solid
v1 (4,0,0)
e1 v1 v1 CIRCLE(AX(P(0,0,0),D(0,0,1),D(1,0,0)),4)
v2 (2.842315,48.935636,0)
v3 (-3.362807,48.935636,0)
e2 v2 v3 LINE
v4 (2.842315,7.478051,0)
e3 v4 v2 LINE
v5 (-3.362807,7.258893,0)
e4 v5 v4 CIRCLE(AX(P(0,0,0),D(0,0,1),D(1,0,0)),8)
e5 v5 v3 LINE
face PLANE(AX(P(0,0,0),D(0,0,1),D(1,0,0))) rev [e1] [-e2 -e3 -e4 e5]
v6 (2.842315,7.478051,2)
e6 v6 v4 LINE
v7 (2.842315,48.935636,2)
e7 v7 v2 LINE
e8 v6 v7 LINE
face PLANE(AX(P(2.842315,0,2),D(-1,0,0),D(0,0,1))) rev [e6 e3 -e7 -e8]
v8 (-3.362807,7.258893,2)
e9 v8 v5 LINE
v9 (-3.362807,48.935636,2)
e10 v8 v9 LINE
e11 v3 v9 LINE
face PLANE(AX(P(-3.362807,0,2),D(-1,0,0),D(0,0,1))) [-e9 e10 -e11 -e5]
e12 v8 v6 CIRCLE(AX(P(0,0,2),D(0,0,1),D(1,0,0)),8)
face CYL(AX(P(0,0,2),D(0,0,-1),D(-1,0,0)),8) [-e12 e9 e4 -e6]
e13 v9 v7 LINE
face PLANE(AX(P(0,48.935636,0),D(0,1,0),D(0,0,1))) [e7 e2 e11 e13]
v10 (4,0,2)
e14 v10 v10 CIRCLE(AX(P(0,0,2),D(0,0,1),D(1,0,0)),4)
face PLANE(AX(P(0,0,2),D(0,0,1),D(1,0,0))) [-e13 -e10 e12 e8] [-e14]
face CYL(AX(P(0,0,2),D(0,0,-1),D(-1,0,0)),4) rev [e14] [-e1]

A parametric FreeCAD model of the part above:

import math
import FreeCAD as App
import Part
import Sketcher

V = App.Vector
Q = App.Units.Quantity

doc = App.newDocument("Part")
params = doc.addObject("Spreadsheet::Sheet", "Params")
for row, (alias, value) in enumerate([
    ("sketch1_diameter", "8 mm"),
    ("sketch1_radius", "8 mm"),
    ("pad1_length", "2 mm"),
    ("sketch2_height", "2 mm"),
    ("pad2_length", "24.5 mm"),
    ("sketch3_height", "2 mm"),
    ("pad3_length", "8 mm"),
], start=1):
    params.set(f"A{row}", alias)
    params.set(f"B{row}", "=" + value)
    params.setAlias(f"B{row}", alias)

body = doc.addObject("PartDesign::Body", "Body")

# Sketch on XY plane
sketch1 = body.newObject("Sketcher::SketchObject", "Sketch")
sketch1.AttachmentSupport = (doc.getObject("XY_Plane"), [""])
sketch1.MapMode = "FlatFace"
sketch1.addGeometry(Part.LineSegment(V(-3.4, 16.4, 0), V(-3.4, 7.3, 0)), False)
sketch1.addGeometry(Part.ArcOfCircle(Part.Circle(V(0, 0, 0), V(0, 0, 1), 8), math.radians(115), math.radians(429)), False)
sketch1.addGeometry(Part.LineSegment(V(2.8, 7.5, 0), V(2.8, 16.4, 0)), False)
sketch1.addGeometry(Part.LineSegment(V(2.8, 16.4, 0), V(-3.4, 16.4, 0)), False)
sketch1.addGeometry(Part.Circle(V(0, 0, 0), V(0, 0, 1), 4), False)
sketch1.addConstraint(Sketcher.Constraint("Coincident", 0, 2, 1, 1))
sketch1.addConstraint(Sketcher.Constraint("Coincident", 1, 2, 2, 1))
sketch1.addConstraint(Sketcher.Constraint("Coincident", 2, 2, 3, 1))
sketch1.addConstraint(Sketcher.Constraint("Coincident", 3, 2, 0, 1))
sketch1.addConstraint(Sketcher.Constraint("Vertical", 0))
sketch1.addConstraint(Sketcher.Constraint("Vertical", 2))
sketch1.addConstraint(Sketcher.Constraint("Horizontal", 3))
sketch1.addConstraint(Sketcher.Constraint("Coincident", 1, 3, -1, 1))
sketch1.addConstraint(Sketcher.Constraint("Coincident", 4, 3, -1, 1))
sketch1.addConstraint(Sketcher.Constraint("Diameter", 4, Q("8 mm")))
sketch1.addConstraint(Sketcher.Constraint("Radius", 1, Q("8 mm")))
sketch1.addConstraint(Sketcher.Constraint("DistanceX", 3, 2, 3, 1, Q("6.205121 mm")))
sketch1.addConstraint(Sketcher.Constraint("DistanceY", 0, 2, 0, 1, Q("9.176743 mm")))
sketch1.addConstraint(Sketcher.Constraint("DistanceY", 2, 1, 2, 2, Q("8.957585 mm")))
sketch1.setExpression("Constraints[9]", "Params.sketch1_diameter")
sketch1.setExpression("Constraints[10]", "Params.sketch1_radius")
pad1 = body.newObject("PartDesign::Pad", "Pad")
pad1.Profile = sketch1
pad1.setExpression("Length", "Params.pad1_length")

# Sketch on XZ plane
sketch2 = body.newObject("Sketcher::SketchObject", "Sketch001")
sketch2.AttachmentSupport = (doc.getObject("XZ_Plane"), [""])
sketch2.MapMode = "FlatFace"
sketch2.AttachmentOffset = App.Placement(V(0, 0, -16.435636), App.Rotation())
sketch2.addGeometry(Part.LineSegment(V(-3.4, 0, 0), V(-3.4, 2, 0)), False)
sketch2.addGeometry(Part.LineSegment(V(-3.4, 2, 0), V(2.8, 2, 0)), False)
sketch2.addGeometry(Part.LineSegment(V(2.8, 2, 0), V(2.8, 0, 0)), False)
sketch2.addGeometry(Part.LineSegment(V(2.8, 0, 0), V(-3.4, 0, 0)), False)
sketch2.addConstraint(Sketcher.Constraint("Coincident", 0, 2, 1, 1))
sketch2.addConstraint(Sketcher.Constraint("Coincident", 1, 2, 2, 1))
sketch2.addConstraint(Sketcher.Constraint("Coincident", 2, 2, 3, 1))
sketch2.addConstraint(Sketcher.Constraint("Coincident", 3, 2, 0, 1))
sketch2.addConstraint(Sketcher.Constraint("Vertical", 0))
sketch2.addConstraint(Sketcher.Constraint("Horizontal", 1))
sketch2.addConstraint(Sketcher.Constraint("Vertical", 2))
sketch2.addConstraint(Sketcher.Constraint("Horizontal", 3))
sketch2.addConstraint(Sketcher.Constraint("PointOnObject", 2, 2, -1))
sketch2.addConstraint(Sketcher.Constraint("DistanceY", 0, 1, 0, 2, Q("2 mm")))
sketch2.addConstraint(Sketcher.Constraint("DistanceX", 1, 1, 1, 2, Q("6.205121 mm")))
sketch2.addConstraint(Sketcher.Constraint("DistanceX", 0, 2, -1, 1, Q("3.362807 mm")))
sketch2.setExpression("Constraints[9]", "Params.sketch2_height")
pad2 = body.newObject("PartDesign::Pad", "Pad001")
pad2.Profile = sketch2
pad2.setExpression("Length", "Params.pad2_length")
pad2.Reversed = True

# Sketch on XZ plane
sketch3 = body.newObject("Sketcher::SketchObject", "Sketch002")
sketch3.AttachmentSupport = (doc.getObject("XZ_Plane"), [""])
sketch3.MapMode = "FlatFace"
sketch3.AttachmentOffset = App.Placement(V(0, 0, -40.935636), App.Rotation())
sketch3.addGeometry(Part.LineSegment(V(-3.4, 0, 0), V(-3.4, 2, 0)), False)
sketch3.addGeometry(Part.LineSegment(V(-3.4, 2, 0), V(2.8, 2, 0)), False)
sketch3.addGeometry(Part.LineSegment(V(2.8, 2, 0), V(2.8, 0, 0)), False)
sketch3.addGeometry(Part.LineSegment(V(2.8, 0, 0), V(-3.4, 0, 0)), False)
sketch3.addConstraint(Sketcher.Constraint("Coincident", 0, 2, 1, 1))
sketch3.addConstraint(Sketcher.Constraint("Coincident", 1, 2, 2, 1))
sketch3.addConstraint(Sketcher.Constraint("Coincident", 2, 2, 3, 1))
sketch3.addConstraint(Sketcher.Constraint("Coincident", 3, 2, 0, 1))
sketch3.addConstraint(Sketcher.Constraint("Vertical", 0))
sketch3.addConstraint(Sketcher.Constraint("Horizontal", 1))
sketch3.addConstraint(Sketcher.Constraint("Vertical", 2))
sketch3.addConstraint(Sketcher.Constraint("Horizontal", 3))
sketch3.addConstraint(Sketcher.Constraint("PointOnObject", 2, 2, -1))
sketch3.addConstraint(Sketcher.Constraint("DistanceY", 0, 1, 0, 2, Q("2 mm")))
sketch3.addConstraint(Sketcher.Constraint("DistanceX", 1, 1, 1, 2, Q("6.205121 mm")))
sketch3.addConstraint(Sketcher.Constraint("DistanceX", 0, 2, -1, 1, Q("3.362807 mm")))
sketch3.setExpression("Constraints[9]", "Params.sketch3_height")
pad3 = body.newObject("PartDesign::Pad", "Pad002")
pad3.Profile = sketch3
pad3.setExpression("Length", "Params.pad3_length")
pad3.Reversed = True

doc.recompute()
